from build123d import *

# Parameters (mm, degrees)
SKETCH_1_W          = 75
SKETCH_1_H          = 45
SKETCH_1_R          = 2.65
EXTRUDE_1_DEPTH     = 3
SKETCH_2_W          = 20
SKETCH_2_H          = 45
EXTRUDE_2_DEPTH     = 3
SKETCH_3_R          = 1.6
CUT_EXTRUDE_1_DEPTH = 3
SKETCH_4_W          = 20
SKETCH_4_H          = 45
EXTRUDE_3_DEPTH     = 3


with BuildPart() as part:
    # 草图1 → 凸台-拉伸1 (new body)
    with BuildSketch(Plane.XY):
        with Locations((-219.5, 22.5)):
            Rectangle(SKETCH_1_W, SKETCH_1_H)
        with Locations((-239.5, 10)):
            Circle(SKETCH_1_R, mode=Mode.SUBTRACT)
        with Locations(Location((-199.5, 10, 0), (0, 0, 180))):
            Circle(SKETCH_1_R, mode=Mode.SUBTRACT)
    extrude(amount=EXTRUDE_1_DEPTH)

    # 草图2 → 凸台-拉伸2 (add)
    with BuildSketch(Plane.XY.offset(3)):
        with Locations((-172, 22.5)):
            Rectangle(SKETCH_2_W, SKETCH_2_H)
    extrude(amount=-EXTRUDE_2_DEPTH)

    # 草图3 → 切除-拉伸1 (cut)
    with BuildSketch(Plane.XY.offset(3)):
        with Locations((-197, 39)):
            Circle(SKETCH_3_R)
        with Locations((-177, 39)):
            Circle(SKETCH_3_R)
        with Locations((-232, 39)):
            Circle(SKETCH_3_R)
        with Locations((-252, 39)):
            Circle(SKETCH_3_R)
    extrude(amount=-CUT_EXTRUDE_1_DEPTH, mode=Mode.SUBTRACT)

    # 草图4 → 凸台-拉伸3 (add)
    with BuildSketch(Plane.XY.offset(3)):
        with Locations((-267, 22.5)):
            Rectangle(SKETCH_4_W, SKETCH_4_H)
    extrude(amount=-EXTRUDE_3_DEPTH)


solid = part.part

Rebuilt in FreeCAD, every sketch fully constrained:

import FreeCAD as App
import Part
import Sketcher


def add_polygon(sketch, points):
    """Adds a closed chain of lines whose ends are joined by coincident constraints."""
    first, n = sketch.GeometryCount, len(points)
    for a, b in zip(points, points[1:] + points[:1]):
        sketch.addGeometry(Part.LineSegment(App.Vector(*a, 0), App.Vector(*b, 0)), False)
    for i in range(n):
        sketch.addConstraint(Sketcher.Constraint("Coincident", first + i, 2, first + (i + 1) % n, 1))

doc = App.newDocument("Part")
body = doc.addObject("PartDesign::Body", "Body")

# Sketch on XY plane
sketch1 = doc.addObject("Sketcher::SketchObject", "Sketch")
body.addObject(sketch1)
sketch1.AttachmentSupport = (doc.XY_Plane, [""])
sketch1.MapMode = "FlatFace"
add_polygon(sketch1, [(-257, 45), (-257, 0), (-182, 0), (-182, 45)])  # lines 0-3
sketch1.addGeometry(Part.Circle(App.Vector(-239.5, 10, 0), App.Vector(0, 0, 1), 2.6), False)  # 4
sketch1.addGeometry(Part.Circle(App.Vector(-199.5, 10, 0), App.Vector(0, 0, 1), 2.6), False)  # 5
sketch1.addConstraint([
    Sketcher.Constraint("Vertical", 0),
    Sketcher.Constraint("Horizontal", 1),
    Sketcher.Constraint("Vertical", 2),
    Sketcher.Constraint("Horizontal", 3),
    Sketcher.Constraint("Equal", 4, 5),
    Sketcher.Constraint("PointOnObject", 0, 2, -1),
    Sketcher.Constraint("Horizontal", 4, 3, 5, 3),
    Sketcher.Constraint("Diameter", 4, 5.3),
    Sketcher.Constraint("DistanceX", 1, 1, 1, 2, 75.0),
    Sketcher.Constraint("DistanceY", 0, 2, 0, 1, 45.0),
    Sketcher.Constraint("DistanceY", -1, 1, 4, 3, 10.0),
    Sketcher.Constraint("DistanceX", 0, 2, -1, 1, 257.0),
    Sketcher.Constraint("DistanceX", 4, 3, 5, 3, 40.0),
    Sketcher.Constraint("DistanceX", 4, 3, -1, 1, 239.5),
])
pad1 = doc.addObject("PartDesign::Pad", "Pad")
body.addObject(pad1)
pad1.Profile = sketch1
pad1.Length = 3

# Sketch on XY plane
sketch2 = doc.addObject("Sketcher::SketchObject", "Sketch001")
body.addObject(sketch2)
sketch2.AttachmentSupport = (doc.XY_Plane, [""])
sketch2.MapMode = "FlatFace"
sketch2.AttachmentOffset = App.Placement(App.Vector(0, 0, 3), App.Rotation())
add_polygon(sketch2, [(-182, 45), (-182, 0), (-162, 0), (-162, 45)])  # lines 0-3
sketch2.addConstraint([
    Sketcher.Constraint("Vertical", 0),
    Sketcher.Constraint("Horizontal", 1),
    Sketcher.Constraint("Vertical", 2),
    Sketcher.Constraint("Horizontal", 3),
    Sketcher.Constraint("PointOnObject", 0, 2, -1),
    Sketcher.Constraint("DistanceX", 1, 1, 1, 2, 20.0),
    Sketcher.Constraint("DistanceY", 0, 2, 0, 1, 45.0),
    Sketcher.Constraint("DistanceX", 0, 2, -1, 1, 182.0),
])
pad2 = doc.addObject("PartDesign::Pad", "Pad001")
body.addObject(pad2)
pad2.Profile = sketch2
pad2.Length = 3
pad2.Reversed = True

# Sketch on XY plane
sketch3 = doc.addObject("Sketcher::SketchObject", "Sketch002")
body.addObject(sketch3)
sketch3.AttachmentSupport = (doc.XY_Plane, [""])
sketch3.MapMode = "FlatFace"
sketch3.AttachmentOffset = App.Placement(App.Vector(0, 0, 3), App.Rotation())
sketch3.addGeometry([
    Part.Circle(App.Vector(-197, 39, 0), App.Vector(0, 0, 1), 1.6),
    Part.Circle(App.Vector(-177, 39, 0), App.Vector(0, 0, 1), 1.6),
    Part.Circle(App.Vector(-232, 39, 0), App.Vector(0, 0, 1), 1.6),
    Part.Circle(App.Vector(-252, 39, 0), App.Vector(0, 0, 1), 1.6),
], False)
sketch3.addConstraint([
    Sketcher.Constraint("Equal", 0, 1),
    Sketcher.Constraint("Equal", 1, 2),
    Sketcher.Constraint("Equal", 2, 3),
    Sketcher.Constraint("Horizontal", 0, 3, 1, 3),
    Sketcher.Constraint("Horizontal", 1, 3, 2, 3),
    Sketcher.Constraint("Horizontal", 2, 3, 3, 3),
    Sketcher.Constraint("Diameter", 0, 3.2),
    Sketcher.Constraint("DistanceX", 0, 3, -1, 1, 197.0),
    Sketcher.Constraint("DistanceY", -1, 1, 0, 3, 39.0),
    Sketcher.Constraint("DistanceX", 1, 3, -1, 1, 177.0),
    Sketcher.Constraint("DistanceX", 2, 3, -1, 1, 232.0),
    Sketcher.Constraint("DistanceX", 3, 3, -1, 1, 252.0),
])
pocket1 = doc.addObject("PartDesign::Pocket", "Pocket")
body.addObject(pocket1)
pocket1.Profile = sketch3
pocket1.Length = 3

# Sketch on XY plane
sketch4 = doc.addObject("Sketcher::SketchObject", "Sketch003")
body.addObject(sketch4)
sketch4.AttachmentSupport = (doc.XY_Plane, [""])
sketch4.MapMode = "FlatFace"
sketch4.AttachmentOffset = App.Placement(App.Vector(0, 0, 3), App.Rotation())
add_polygon(sketch4, [(-277, 45), (-277, 0), (-257, 0), (-257, 45)])  # lines 0-3
sketch4.addConstraint([
    Sketcher.Constraint("Vertical", 0),
    Sketcher.Constraint("Horizontal", 1),
    Sketcher.Constraint("Vertical", 2),
    Sketcher.Constraint("Horizontal", 3),
    Sketcher.Constraint("PointOnObject", 0, 2, -1),
    Sketcher.Constraint("DistanceX", 1, 1, 1, 2, 20.0),
    Sketcher.Constraint("DistanceY", 0, 2, 0, 1, 45.0),
    Sketcher.Constraint("DistanceX", 0, 2, -1, 1, 277.0),
])
pad3 = doc.addObject("PartDesign::Pad", "Pad002")
body.addObject(pad3)
pad3.Profile = sketch4
pad3.Length = 3
pad3.Reversed = True

doc.recompute()
